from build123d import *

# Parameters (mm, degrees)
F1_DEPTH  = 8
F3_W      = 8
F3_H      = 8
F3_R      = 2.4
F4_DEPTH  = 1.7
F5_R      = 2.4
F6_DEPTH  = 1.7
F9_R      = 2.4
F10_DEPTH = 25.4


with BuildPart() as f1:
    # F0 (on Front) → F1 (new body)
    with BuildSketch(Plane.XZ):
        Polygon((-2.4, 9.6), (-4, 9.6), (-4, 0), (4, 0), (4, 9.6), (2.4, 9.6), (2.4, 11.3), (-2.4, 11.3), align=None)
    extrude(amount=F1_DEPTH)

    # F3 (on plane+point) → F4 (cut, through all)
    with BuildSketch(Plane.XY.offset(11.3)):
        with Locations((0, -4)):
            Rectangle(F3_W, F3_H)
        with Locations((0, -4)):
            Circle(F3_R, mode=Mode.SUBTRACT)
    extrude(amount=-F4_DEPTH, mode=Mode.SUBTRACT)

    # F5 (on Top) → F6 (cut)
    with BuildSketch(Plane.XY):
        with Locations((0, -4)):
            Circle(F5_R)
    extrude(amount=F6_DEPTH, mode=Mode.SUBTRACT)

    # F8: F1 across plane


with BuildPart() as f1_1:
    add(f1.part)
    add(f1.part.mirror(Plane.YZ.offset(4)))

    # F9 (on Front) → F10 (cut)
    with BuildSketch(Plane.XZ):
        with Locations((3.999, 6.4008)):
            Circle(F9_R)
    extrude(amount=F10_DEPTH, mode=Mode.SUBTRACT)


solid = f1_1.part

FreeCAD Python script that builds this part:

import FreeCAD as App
import Part
import Sketcher
from FreeCAD import Vector
Q = App.Units.Quantity

doc = App.newDocument("Part")
body = doc.addObject("PartDesign::Body", "Body")

sketch1 = body.newObject("Sketcher::SketchObject", "Sketch")
sketch1.AttachmentSupport = (doc.getObject("XZ_Plane"), [""])
sketch1.MapMode = "FlatFace"
sketch1.addGeometry(Part.LineSegment(Vector(-2.4, 9.6, 0), Vector(-4, 9.6, 0)), False)
sketch1.addGeometry(Part.LineSegment(Vector(-4, 9.6, 0), Vector(-4, 0, 0)), False)
sketch1.addGeometry(Part.LineSegment(Vector(-4, 0, 0), Vector(4, 0, 0)), False)
sketch1.addGeometry(Part.LineSegment(Vector(4, 0, 0), Vector(4, 9.6, 0)), False)
sketch1.addGeometry(Part.LineSegment(Vector(4, 9.6, 0), Vector(2.4, 9.6, 0)), False)
sketch1.addGeometry(Part.LineSegment(Vector(2.4, 9.6, 0), Vector(2.4, 11.3, 0)), False)
sketch1.addGeometry(Part.LineSegment(Vector(2.4, 11.3, 0), Vector(-2.4, 11.3, 0)), False)
sketch1.addGeometry(Part.LineSegment(Vector(-2.4, 11.3, 0), Vector(-2.4, 9.6, 0)), False)
sketch1.addConstraint(Sketcher.Constraint("Coincident", 0, 2, 1, 1))
sketch1.addConstraint(Sketcher.Constraint("Coincident", 1, 2, 2, 1))
sketch1.addConstraint(Sketcher.Constraint("Coincident", 2, 2, 3, 1))
sketch1.addConstraint(Sketcher.Constraint("Coincident", 3, 2, 4, 1))
sketch1.addConstraint(Sketcher.Constraint("Coincident", 4, 2, 5, 1))
sketch1.addConstraint(Sketcher.Constraint("Coincident", 5, 2, 6, 1))
sketch1.addConstraint(Sketcher.Constraint("Coincident", 6, 2, 7, 1))
sketch1.addConstraint(Sketcher.Constraint("Coincident", 7, 2, 0, 1))
sketch1.addConstraint(Sketcher.Constraint("Horizontal", 0))
sketch1.addConstraint(Sketcher.Constraint("Vertical", 1))
sketch1.addConstraint(Sketcher.Constraint("Horizontal", 2))
sketch1.addConstraint(Sketcher.Constraint("Vertical", 3))
sketch1.addConstraint(Sketcher.Constraint("Horizontal", 4))
sketch1.addConstraint(Sketcher.Constraint("Vertical", 5))
sketch1.addConstraint(Sketcher.Constraint("Horizontal", 6))
sketch1.addConstraint(Sketcher.Constraint("Vertical", 7))
sketch1.addConstraint(Sketcher.Constraint("Symmetric", 1, 2, 2, 2, -1, 1))
sketch1.addConstraint(Sketcher.Constraint("Symmetric", 4, 2, 7, 2, -2))
sketch1.addConstraint(Sketcher.Constraint("DistanceX", 2, 1, 2, 2, Q("8 mm")))
sketch1.addConstraint(Sketcher.Constraint("DistanceX", 0, 2, 0, 1, Q("1.6 mm")))
sketch1.addConstraint(Sketcher.Constraint("DistanceY", 1, 2, 1, 1, Q("9.6 mm")))
sketch1.addConstraint(Sketcher.Constraint("DistanceY", 5, 1, 5, 2, Q("1.7 mm")))
pad1 = body.newObject("PartDesign::Pad", "Pad")
pad1.Profile = sketch1
pad1.Length = 8

sketch2 = body.newObject("Sketcher::SketchObject", "Sketch001")
sketch2.AttachmentSupport = (doc.getObject("XY_Plane"), [""])
sketch2.MapMode = "FlatFace"
sketch2.AttachmentOffset = App.Placement(Vector(0, 0, 11.3), App.Rotation())
sketch2.addGeometry(Part.LineSegment(Vector(-4, 0, 0), Vector(-4, -8, 0)), False)
sketch2.addGeometry(Part.LineSegment(Vector(-4, -8, 0), Vector(4, -8, 0)), False)
sketch2.addGeometry(Part.LineSegment(Vector(4, -8, 0), Vector(4, 0, 0)), False)
sketch2.addGeometry(Part.LineSegment(Vector(4, 0, 0), Vector(-4, 0, 0)), False)
sketch2.addGeometry(Part.Circle(Vector(0, -4, 0), Vector(0, 0, 1), 2.4), False)
sketch2.addConstraint(Sketcher.Constraint("Coincident", 0, 2, 1, 1))
sketch2.addConstraint(Sketcher.Constraint("Coincident", 1, 2, 2, 1))
sketch2.addConstraint(Sketcher.Constraint("Coincident", 2, 2, 3, 1))
sketch2.addConstraint(Sketcher.Constraint("Coincident", 3, 2, 0, 1))
sketch2.addConstraint(Sketcher.Constraint("Vertical", 0))
sketch2.addConstraint(Sketcher.Constraint("Horizontal", 1))
sketch2.addConstraint(Sketcher.Constraint("Vertical", 2))
sketch2.addConstraint(Sketcher.Constraint("Horizontal", 3))
sketch2.addConstraint(Sketcher.Constraint("Symmetric", 2, 2, 3, 2, -1, 1))
sketch2.addConstraint(Sketcher.Constraint("PointOnObject", 4, 3, -2))
sketch2.addConstraint(Sketcher.Constraint("Equal", 3, 0))
sketch2.addConstraint(Sketcher.Constraint("Diameter", 4, Q("4.8 mm")))
sketch2.addConstraint(Sketcher.Constraint("DistanceX", 1, 1, 1, 2, Q("8 mm")))
sketch2.addConstraint(Sketcher.Constraint("DistanceY", 4, 3, -1, 1, Q("4 mm")))
pocket1 = body.newObject("PartDesign::Pocket", "Pocket")
pocket1.Profile = sketch2
pocket1.Length = 1.7

sketch3 = body.newObject("Sketcher::SketchObject", "Sketch002")
sketch3.AttachmentSupport = (doc.getObject("XY_Plane"), [""])
sketch3.MapMode = "FlatFace"
sketch3.addGeometry(Part.Circle(Vector(0, -4, 0), Vector(0, 0, 1), 2.4), False)
sketch3.addConstraint(Sketcher.Constraint("PointOnObject", 0, 3, -2))
sketch3.addConstraint(Sketcher.Constraint("Diameter", 0, Q("4.8 mm")))
sketch3.addConstraint(Sketcher.Constraint("DistanceY", 0, 3, -1, 1, Q("4 mm")))
pocket2 = body.newObject("PartDesign::Pocket", "Pocket001")
pocket2.Profile = sketch3
pocket2.Length = 1.7
pocket2.Reversed = True
body2 = doc.addObject("PartDesign::Body", "Body001")
doc.recompute()

body2.BaseFeature = body
doc.recompute()

mirroring = doc.addObject("Part::Mirroring", "Mirroring")
mirroring.Source = body
mirroring.Base = Vector(4, 0, 0)
mirroring.Normal = Vector(1, 0, 0)
body3 = doc.addObject("PartDesign::Body", "Body002")
body3.BaseFeature = mirroring
boolean = body2.newObject("PartDesign::Boolean", "Boolean")
boolean.Type = "Fuse"
boolean.addObjects([body3])
doc.recompute()

sketch4 = body2.newObject("Sketcher::SketchObject", "Sketch003")
sketch4.AttachmentSupport = (doc.getObject("XZ_Plane001"), [""])
sketch4.MapMode = "FlatFace"
sketch4.addGeometry(Part.Circle(Vector(4, 6.4, 0), Vector(0, 0, 1), 2.4), False)
sketch4.addConstraint(Sketcher.Constraint("Diameter", 0, Q("4.8 mm")))
sketch4.addConstraint(Sketcher.Constraint("DistanceX", -1, 1, 0, 3, Q("3.999 mm")))
sketch4.addConstraint(Sketcher.Constraint("DistanceY", -1, 1, 0, 3, Q("6.4008 mm")))
pocket3 = body2.newObject("PartDesign::Pocket", "Pocket002")
pocket3.Profile = sketch4
pocket3.Length = 25.4
pocket3.Reversed = True
mirroring.Visibility = False

doc.recompute()
